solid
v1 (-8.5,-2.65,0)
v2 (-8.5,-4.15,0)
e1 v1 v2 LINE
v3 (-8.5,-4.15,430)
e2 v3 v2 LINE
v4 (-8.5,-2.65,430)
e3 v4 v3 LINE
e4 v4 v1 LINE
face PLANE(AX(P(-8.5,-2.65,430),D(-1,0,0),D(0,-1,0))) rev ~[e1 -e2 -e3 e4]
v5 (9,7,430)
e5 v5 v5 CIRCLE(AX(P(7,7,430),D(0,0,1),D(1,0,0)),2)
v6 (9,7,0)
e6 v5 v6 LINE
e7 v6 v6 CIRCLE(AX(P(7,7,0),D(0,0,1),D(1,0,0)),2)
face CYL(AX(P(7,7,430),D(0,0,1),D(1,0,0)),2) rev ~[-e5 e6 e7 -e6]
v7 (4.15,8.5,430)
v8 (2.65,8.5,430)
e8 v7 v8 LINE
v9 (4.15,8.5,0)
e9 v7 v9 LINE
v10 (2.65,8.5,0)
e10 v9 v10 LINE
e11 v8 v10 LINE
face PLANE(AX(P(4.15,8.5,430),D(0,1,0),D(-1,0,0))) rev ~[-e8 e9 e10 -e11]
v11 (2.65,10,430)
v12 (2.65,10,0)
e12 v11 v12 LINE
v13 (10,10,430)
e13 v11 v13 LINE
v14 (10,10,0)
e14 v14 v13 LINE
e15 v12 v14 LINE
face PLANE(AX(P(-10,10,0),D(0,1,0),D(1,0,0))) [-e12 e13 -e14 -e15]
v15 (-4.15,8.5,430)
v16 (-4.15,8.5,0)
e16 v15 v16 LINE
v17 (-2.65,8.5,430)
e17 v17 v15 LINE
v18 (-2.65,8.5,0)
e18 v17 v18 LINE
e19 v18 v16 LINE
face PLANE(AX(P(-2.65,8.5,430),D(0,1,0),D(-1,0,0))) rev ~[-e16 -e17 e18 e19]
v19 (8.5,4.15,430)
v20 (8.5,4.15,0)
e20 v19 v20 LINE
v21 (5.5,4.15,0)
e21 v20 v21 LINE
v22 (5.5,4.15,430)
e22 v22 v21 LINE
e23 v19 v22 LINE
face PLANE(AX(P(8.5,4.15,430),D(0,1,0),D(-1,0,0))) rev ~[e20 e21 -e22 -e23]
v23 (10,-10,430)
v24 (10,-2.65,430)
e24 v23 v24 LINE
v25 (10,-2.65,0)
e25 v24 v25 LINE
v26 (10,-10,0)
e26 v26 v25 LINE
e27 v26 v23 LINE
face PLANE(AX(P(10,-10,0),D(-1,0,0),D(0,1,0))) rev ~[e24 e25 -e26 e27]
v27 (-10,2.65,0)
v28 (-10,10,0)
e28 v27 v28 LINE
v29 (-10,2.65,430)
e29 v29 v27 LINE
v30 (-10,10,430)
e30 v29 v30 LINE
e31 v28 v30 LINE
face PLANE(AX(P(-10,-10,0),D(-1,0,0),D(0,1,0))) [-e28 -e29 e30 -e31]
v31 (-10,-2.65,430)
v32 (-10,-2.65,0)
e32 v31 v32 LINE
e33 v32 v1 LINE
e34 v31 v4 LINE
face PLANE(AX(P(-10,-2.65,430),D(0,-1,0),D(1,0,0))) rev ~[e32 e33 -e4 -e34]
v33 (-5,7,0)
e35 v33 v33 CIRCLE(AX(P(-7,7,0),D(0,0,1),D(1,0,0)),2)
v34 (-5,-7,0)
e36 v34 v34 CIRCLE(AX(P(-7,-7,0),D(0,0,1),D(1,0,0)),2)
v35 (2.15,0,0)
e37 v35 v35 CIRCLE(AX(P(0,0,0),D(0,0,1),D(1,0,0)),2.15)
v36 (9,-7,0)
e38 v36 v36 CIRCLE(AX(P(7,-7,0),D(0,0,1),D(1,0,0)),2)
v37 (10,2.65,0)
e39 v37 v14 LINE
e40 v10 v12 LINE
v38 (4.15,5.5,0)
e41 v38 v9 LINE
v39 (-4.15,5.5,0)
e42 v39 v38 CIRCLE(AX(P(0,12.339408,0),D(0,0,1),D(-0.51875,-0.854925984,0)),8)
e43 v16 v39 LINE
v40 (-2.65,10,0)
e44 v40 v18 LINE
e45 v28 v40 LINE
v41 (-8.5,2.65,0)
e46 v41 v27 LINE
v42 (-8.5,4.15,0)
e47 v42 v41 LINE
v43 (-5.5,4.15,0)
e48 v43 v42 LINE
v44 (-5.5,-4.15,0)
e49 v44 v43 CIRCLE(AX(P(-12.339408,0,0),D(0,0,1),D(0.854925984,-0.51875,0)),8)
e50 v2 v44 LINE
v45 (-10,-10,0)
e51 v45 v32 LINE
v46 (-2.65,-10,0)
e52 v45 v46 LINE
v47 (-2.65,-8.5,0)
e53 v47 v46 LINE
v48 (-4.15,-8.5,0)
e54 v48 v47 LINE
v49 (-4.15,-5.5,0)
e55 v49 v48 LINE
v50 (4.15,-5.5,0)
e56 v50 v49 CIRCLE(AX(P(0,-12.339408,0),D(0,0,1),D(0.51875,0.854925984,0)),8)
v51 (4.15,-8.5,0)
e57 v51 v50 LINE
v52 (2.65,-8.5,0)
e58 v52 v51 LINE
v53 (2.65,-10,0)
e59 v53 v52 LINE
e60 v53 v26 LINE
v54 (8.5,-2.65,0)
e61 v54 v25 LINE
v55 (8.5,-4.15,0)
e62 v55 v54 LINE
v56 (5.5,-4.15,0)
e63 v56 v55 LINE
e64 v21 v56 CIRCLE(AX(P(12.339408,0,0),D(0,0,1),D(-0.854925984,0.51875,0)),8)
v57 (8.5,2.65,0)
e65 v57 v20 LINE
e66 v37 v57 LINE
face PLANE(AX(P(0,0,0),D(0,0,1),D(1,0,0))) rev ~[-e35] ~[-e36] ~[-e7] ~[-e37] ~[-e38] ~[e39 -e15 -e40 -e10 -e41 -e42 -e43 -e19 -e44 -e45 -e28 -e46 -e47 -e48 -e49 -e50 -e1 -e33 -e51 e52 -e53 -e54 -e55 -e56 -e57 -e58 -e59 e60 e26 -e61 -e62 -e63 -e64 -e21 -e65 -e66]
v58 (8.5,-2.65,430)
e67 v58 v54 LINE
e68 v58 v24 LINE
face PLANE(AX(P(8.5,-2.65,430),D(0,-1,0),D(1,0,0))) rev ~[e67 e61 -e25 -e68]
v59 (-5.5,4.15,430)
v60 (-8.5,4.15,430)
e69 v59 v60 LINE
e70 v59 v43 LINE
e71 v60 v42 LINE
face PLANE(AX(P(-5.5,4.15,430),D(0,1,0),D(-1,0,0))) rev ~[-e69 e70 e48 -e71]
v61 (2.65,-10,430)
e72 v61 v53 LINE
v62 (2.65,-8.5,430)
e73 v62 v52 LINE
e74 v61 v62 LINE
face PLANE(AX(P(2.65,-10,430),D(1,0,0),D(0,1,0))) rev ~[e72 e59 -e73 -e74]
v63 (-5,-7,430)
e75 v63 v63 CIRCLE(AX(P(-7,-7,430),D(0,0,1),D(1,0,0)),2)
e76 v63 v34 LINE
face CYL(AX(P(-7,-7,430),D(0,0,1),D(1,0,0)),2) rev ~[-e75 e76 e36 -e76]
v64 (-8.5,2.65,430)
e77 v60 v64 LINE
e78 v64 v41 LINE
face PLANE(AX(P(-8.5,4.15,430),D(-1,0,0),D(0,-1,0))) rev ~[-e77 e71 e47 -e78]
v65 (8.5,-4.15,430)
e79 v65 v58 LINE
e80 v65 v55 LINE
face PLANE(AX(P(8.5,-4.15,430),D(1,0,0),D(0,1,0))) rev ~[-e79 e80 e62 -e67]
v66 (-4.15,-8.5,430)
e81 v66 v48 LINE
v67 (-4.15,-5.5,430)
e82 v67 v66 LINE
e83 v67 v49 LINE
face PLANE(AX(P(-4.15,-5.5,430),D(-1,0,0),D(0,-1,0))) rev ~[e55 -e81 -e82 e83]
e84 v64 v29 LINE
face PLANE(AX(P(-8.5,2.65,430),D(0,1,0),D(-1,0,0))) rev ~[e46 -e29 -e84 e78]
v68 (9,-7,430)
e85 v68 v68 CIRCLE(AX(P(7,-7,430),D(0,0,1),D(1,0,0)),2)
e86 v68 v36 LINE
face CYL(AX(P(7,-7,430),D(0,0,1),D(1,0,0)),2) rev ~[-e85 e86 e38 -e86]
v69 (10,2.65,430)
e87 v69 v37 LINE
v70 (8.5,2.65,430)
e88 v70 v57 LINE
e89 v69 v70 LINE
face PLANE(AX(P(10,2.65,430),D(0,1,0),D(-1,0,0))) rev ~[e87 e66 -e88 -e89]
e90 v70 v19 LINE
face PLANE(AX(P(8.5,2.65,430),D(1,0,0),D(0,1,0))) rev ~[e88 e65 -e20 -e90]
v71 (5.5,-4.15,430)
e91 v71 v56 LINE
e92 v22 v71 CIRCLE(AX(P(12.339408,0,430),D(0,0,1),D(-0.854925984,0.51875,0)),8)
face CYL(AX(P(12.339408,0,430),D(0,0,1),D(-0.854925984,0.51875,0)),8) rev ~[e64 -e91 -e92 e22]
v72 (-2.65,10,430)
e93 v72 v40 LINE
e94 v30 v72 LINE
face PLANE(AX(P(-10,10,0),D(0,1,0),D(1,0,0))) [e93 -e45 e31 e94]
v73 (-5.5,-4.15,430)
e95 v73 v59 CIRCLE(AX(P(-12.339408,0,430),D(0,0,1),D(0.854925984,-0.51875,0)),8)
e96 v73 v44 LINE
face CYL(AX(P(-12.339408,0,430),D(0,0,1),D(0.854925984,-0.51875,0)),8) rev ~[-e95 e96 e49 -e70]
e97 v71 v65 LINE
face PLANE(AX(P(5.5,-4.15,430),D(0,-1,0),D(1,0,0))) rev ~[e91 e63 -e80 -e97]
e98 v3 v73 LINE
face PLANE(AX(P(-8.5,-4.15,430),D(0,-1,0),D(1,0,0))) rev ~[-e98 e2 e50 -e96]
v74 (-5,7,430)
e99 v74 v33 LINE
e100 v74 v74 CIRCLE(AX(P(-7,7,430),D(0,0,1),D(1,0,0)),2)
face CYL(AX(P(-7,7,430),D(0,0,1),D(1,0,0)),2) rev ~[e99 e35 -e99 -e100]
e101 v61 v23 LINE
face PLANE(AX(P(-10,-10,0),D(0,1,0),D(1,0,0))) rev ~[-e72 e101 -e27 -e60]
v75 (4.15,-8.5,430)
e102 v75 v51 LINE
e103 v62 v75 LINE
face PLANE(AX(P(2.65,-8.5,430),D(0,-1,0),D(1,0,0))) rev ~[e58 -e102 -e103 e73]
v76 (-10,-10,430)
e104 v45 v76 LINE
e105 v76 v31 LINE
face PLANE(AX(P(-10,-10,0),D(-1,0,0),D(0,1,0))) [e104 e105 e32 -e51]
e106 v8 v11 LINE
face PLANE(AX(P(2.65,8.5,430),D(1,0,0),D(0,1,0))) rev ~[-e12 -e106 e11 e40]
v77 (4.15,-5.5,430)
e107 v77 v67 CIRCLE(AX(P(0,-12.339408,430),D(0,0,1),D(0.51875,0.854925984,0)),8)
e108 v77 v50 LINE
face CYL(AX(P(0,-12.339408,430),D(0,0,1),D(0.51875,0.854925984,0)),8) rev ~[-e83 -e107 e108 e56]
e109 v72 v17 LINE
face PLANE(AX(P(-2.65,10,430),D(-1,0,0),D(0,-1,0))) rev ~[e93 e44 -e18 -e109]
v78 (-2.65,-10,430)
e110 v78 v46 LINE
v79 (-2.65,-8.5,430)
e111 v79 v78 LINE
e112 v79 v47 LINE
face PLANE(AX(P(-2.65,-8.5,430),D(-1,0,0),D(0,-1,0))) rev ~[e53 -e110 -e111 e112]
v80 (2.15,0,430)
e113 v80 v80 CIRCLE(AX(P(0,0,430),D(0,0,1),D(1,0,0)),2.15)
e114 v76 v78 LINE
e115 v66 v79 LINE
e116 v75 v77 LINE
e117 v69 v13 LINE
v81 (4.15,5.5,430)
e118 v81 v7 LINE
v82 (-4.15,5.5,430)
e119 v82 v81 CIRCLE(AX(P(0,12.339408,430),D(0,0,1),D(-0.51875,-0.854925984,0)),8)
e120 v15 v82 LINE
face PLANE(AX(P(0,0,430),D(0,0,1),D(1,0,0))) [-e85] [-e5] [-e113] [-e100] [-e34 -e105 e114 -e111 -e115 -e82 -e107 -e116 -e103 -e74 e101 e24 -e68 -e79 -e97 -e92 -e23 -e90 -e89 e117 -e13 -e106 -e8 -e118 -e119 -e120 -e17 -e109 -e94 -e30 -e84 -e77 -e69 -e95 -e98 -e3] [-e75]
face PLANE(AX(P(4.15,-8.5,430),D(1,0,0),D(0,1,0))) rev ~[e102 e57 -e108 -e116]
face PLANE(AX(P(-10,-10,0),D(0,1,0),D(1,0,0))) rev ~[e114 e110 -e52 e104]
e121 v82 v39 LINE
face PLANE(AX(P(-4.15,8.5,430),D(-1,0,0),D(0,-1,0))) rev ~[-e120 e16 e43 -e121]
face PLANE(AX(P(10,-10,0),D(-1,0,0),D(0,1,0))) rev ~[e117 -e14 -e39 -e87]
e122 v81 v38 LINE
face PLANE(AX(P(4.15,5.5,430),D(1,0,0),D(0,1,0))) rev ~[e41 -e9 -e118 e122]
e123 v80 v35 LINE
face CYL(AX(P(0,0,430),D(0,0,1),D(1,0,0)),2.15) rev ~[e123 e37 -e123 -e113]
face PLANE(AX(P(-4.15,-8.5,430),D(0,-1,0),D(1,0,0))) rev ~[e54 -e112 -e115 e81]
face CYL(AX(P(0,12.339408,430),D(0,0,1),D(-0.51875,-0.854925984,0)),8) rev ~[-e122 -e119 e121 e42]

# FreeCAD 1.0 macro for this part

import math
import FreeCAD as App
import Part
import Sketcher

V = App.Vector
Q = App.Units.Quantity

doc = App.newDocument("Part")
body = doc.addObject("PartDesign::Body", "Body")

# Sketch on XY plane
sketch1 = body.newObject("Sketcher::SketchObject", "Sketch")
sketch1.AttachmentSupport = (doc.getObject("XY_Plane"), [""])
sketch1.MapMode = "FlatFace"
sketch1.addGeometry([
    Part.LineSegment(V(-10, 10, 0), V(-10, -10, 0)),
    Part.LineSegment(V(-10, -10, 0), V(10, -10, 0)),
    Part.LineSegment(V(10, -10, 0), V(10, 10, 0)),
    Part.LineSegment(V(10, 10, 0), V(-10, 10, 0)),
], False)
sketch1.addConstraint([
    Sketcher.Constraint("Coincident", 0, 2, 1, 1),
    Sketcher.Constraint("Coincident", 1, 2, 2, 1),
    Sketcher.Constraint("Coincident", 2, 2, 3, 1),
    Sketcher.Constraint("Coincident", 3, 2, 0, 1),
    Sketcher.Constraint("Vertical", 0),
    Sketcher.Constraint("Horizontal", 1),
    Sketcher.Constraint("Vertical", 2),
    Sketcher.Constraint("Horizontal", 3),
    Sketcher.Constraint("Symmetric", 0, 2, 2, 2, -1, 1),
    Sketcher.Constraint("Equal", 3, 0),
    Sketcher.Constraint("DistanceX", 1, 1, 1, 2, Q("20 mm")),
])
pad1 = body.newObject("PartDesign::Pad", "Pad")
pad1.Profile = sketch1
pad1.Length = 430

# Sketch on XY plane
sketch2 = body.newObject("Sketcher::SketchObject", "Sketch001")
sketch2.AttachmentSupport = (doc.getObject("XY_Plane"), [""])
sketch2.MapMode = "FlatFace"
sketch2.AttachmentOffset = App.Placement(V(0, 0, 430), App.Rotation())
sketch2.addGeometry([
    Part.Circle(V(0, 0, 0), V(0, 0, 1), 2.1),  # 0
    Part.Circle(V(-7, 7, 0), V(0, 0, 1), 2),  # 1
    Part.Circle(V(7, 7, 0), V(0, 0, 1), 2),  # 2
    Part.Circle(V(7, -7, 0), V(0, 0, 1), 2),  # 3
    Part.Circle(V(-7, -7, 0), V(0, 0, 1), 2),  # 4
    Part.LineSegment(V(-2.6, 10, 0), V(-2.6, 8.5, 0)),  # 5
    Part.LineSegment(V(-2.6, 8.5, 0), V(-4.2, 8.5, 0)),  # 6
    Part.LineSegment(V(-4.2, 8.5, 0), V(-4.2, 5.5, 0)),  # 7
    Part.ArcOfCircle(Part.Circle(V(0, 12.3, 0), V(0, 0, 1), 8), math.radians(-121), math.radians(-59)),  # 8
    Part.LineSegment(V(4.2, 5.5, 0), V(4.2, 8.5, 0)),  # 9
    Part.LineSegment(V(4.2, 8.5, 0), V(2.6, 8.5, 0)),  # 10
    Part.LineSegment(V(2.6, 8.5, 0), V(2.6, 10, 0)),  # 11
    Part.LineSegment(V(2.6, 10, 0), V(-2.6, 10, 0)),  # 12
    Part.LineSegment(V(10, 2.6, 0), V(8.5, 2.6, 0)),  # 13
    Part.LineSegment(V(8.5, 2.6, 0), V(8.5, 4.2, 0)),  # 14
    Part.LineSegment(V(8.5, 4.2, 0), V(5.5, 4.2, 0)),  # 15
    Part.ArcOfCircle(Part.Circle(V(12.3, 0, 0), V(0, 0, 1), 8), math.radians(149), math.radians(211)),  # 16
    Part.LineSegment(V(5.5, -4.2, 0), V(8.5, -4.2, 0)),  # 17
    Part.LineSegment(V(8.5, -4.2, 0), V(8.5, -2.6, 0)),  # 18
    Part.LineSegment(V(8.5, -2.6, 0), V(10, -2.6, 0)),  # 19
    Part.LineSegment(V(10, -2.6, 0), V(10, 2.6, 0)),  # 20
    Part.LineSegment(V(2.6, -10, 0), V(2.6, -8.5, 0)),  # 21
    Part.LineSegment(V(2.6, -8.5, 0), V(4.2, -8.5, 0)),  # 22
    Part.LineSegment(V(4.2, -8.5, 0), V(4.2, -5.5, 0)),  # 23
    Part.ArcOfCircle(Part.Circle(V(0, -12.3, 0), V(0, 0, 1), 8), math.radians(59), math.radians(121)),  # 24
    Part.LineSegment(V(-4.2, -5.5, 0), V(-4.2, -8.5, 0)),  # 25
    Part.LineSegment(V(-4.2, -8.5, 0), V(-2.6, -8.5, 0)),  # 26
    Part.LineSegment(V(-2.6, -8.5, 0), V(-2.6, -10, 0)),  # 27
    Part.LineSegment(V(-2.6, -10, 0), V(2.6, -10, 0)),  # 28
    Part.LineSegment(V(-10, -2.6, 0), V(-8.5, -2.6, 0)),  # 29
    Part.LineSegment(V(-8.5, -2.6, 0), V(-8.5, -4.2, 0)),  # 30
    Part.LineSegment(V(-8.5, -4.2, 0), V(-5.5, -4.2, 0)),  # 31
    Part.ArcOfCircle(Part.Circle(V(-12.3, 0, 0), V(0, 0, 1), 8), math.radians(-31), math.radians(31)),  # 32
    Part.LineSegment(V(-5.5, 4.2, 0), V(-8.5, 4.2, 0)),  # 33
    Part.LineSegment(V(-8.5, 4.2, 0), V(-8.5, 2.6, 0)),  # 34
    Part.LineSegment(V(-8.5, 2.6, 0), V(-10, 2.6, 0)),  # 35
    Part.LineSegment(V(-10, 2.6, 0), V(-10, -2.6, 0)),  # 36
], False)
sketch2.addConstraint([
    Sketcher.Constraint("Coincident", 5, 2, 6, 1),
    Sketcher.Constraint("Coincident", 6, 2, 7, 1),
    Sketcher.Constraint("Coincident", 7, 2, 8, 1),
    Sketcher.Constraint("Coincident", 8, 2, 9, 1),
    Sketcher.Constraint("Coincident", 9, 2, 10, 1),
    Sketcher.Constraint("Coincident", 10, 2, 11, 1),
    Sketcher.Constraint("Coincident", 11, 2, 12, 1),
    Sketcher.Constraint("Coincident", 12, 2, 5, 1),
    Sketcher.Constraint("Coincident", 13, 2, 14, 1),
    Sketcher.Constraint("Coincident", 14, 2, 15, 1),
    Sketcher.Constraint("Coincident", 15, 2, 16, 1),
    Sketcher.Constraint("Coincident", 16, 2, 17, 1),
    Sketcher.Constraint("Coincident", 17, 2, 18, 1),
    Sketcher.Constraint("Coincident", 18, 2, 19, 1),
    Sketcher.Constraint("Coincident", 19, 2, 20, 1),
    Sketcher.Constraint("Coincident", 20, 2, 13, 1),
    Sketcher.Constraint("Coincident", 21, 2, 22, 1),
    Sketcher.Constraint("Coincident", 22, 2, 23, 1),
    Sketcher.Constraint("Coincident", 23, 2, 24, 1),
    Sketcher.Constraint("Coincident", 24, 2, 25, 1),
    Sketcher.Constraint("Coincident", 25, 2, 26, 1),
    Sketcher.Constraint("Coincident", 26, 2, 27, 1),
    Sketcher.Constraint("Coincident", 27, 2, 28, 1),
    Sketcher.Constraint("Coincident", 28, 2, 21, 1),
    Sketcher.Constraint("Coincident", 29, 2, 30, 1),
    Sketcher.Constraint("Coincident", 30, 2, 31, 1),
    Sketcher.Constraint("Coincident", 31, 2, 32, 1),
    Sketcher.Constraint("Coincident", 32, 2, 33, 1),
    Sketcher.Constraint("Coincident", 33, 2, 34, 1),
    Sketcher.Constraint("Coincident", 34, 2, 35, 1),
    Sketcher.Constraint("Coincident", 35, 2, 36, 1),
    Sketcher.Constraint("Coincident", 36, 2, 29, 1),
    Sketcher.Constraint("Vertical", 5),
    Sketcher.Constraint("Horizontal", 6),
    Sketcher.Constraint("Vertical", 7),
    Sketcher.Constraint("Vertical", 9),
    Sketcher.Constraint("Horizontal", 10),
    Sketcher.Constraint("Vertical", 11),
    Sketcher.Constraint("Horizontal", 12),
    Sketcher.Constraint("Horizontal", 13),
    Sketcher.Constraint("Vertical", 14),
    Sketcher.Constraint("Horizontal", 15),
    Sketcher.Constraint("Horizontal", 17),
    Sketcher.Constraint("Vertical", 18),
    Sketcher.Constraint("Horizontal", 19),
    Sketcher.Constraint("Vertical", 20),
    Sketcher.Constraint("Vertical", 21),
    Sketcher.Constraint("Horizontal", 22),
    Sketcher.Constraint("Vertical", 23),
    Sketcher.Constraint("Vertical", 25),
    Sketcher.Constraint("Horizontal", 26),
    Sketcher.Constraint("Vertical", 27),
    Sketcher.Constraint("Horizontal", 28),
    Sketcher.Constraint("Horizontal", 29),
    Sketcher.Constraint("Vertical", 30),
    Sketcher.Constraint("Horizontal", 31),
    Sketcher.Constraint("Horizontal", 33),
    Sketcher.Constraint("Vertical", 34),
    Sketcher.Constraint("Horizontal", 35),
    Sketcher.Constraint("Vertical", 36),
    Sketcher.Constraint("Coincident", 0, 3, -1, 1),
    Sketcher.Constraint("Equal", 1, 2),
    Sketcher.Constraint("Equal", 2, 3),
    Sketcher.Constraint("Equal", 3, 4),
    Sketcher.Constraint("Equal", 8, 16),
    Sketcher.Constraint("Equal", 16, 24),
    Sketcher.Constraint("Equal", 24, 32),
    Sketcher.Constraint("Symmetric", 1, 3, 3, 3, -1, 1),
    Sketcher.Constraint("Symmetric", 2, 3, 4, 3, -1, 1),
    Sketcher.Constraint("Symmetric", 8, 3, 24, 3, -1, 1),
    Sketcher.Constraint("Symmetric", 16, 3, 32, 3, -1, 1),
    Sketcher.Constraint("Symmetric", 5, 2, 21, 2, -1, 1),
    Sketcher.Constraint("Symmetric", 9, 2, 25, 2, -1, 1),
    Sketcher.Constraint("Symmetric", 11, 2, 27, 2, -1, 1),
    Sketcher.Constraint("Symmetric", 13, 2, 29, 2, -1, 1),
    Sketcher.Constraint("Symmetric", 17, 2, 33, 2, -1, 1),
    Sketcher.Constraint("Symmetric", 19, 2, 35, 2, -1, 1),
    Sketcher.Constraint("Symmetric", 1, 3, 2, 3, -2),
    Sketcher.Constraint("Symmetric", 7, 2, 8, 2, -2),
    Sketcher.Constraint("Symmetric", 5, 2, 10, 2, -2),
    Sketcher.Constraint("Symmetric", 18, 2, 29, 2, -2),
    Sketcher.Constraint("Symmetric", 16, 2, 31, 2, -2),
    Sketcher.Constraint("Horizontal", 23, 2, 24, 2),
    Sketcher.Constraint("Horizontal", 15, 2, 32, 2),
    Sketcher.Constraint("Equal", 10, 13),
    Sketcher.Constraint("Equal", 35, 5),
    Sketcher.Constraint("Equal", 33, 7),
    Sketcher.Constraint("Equal", 11, 14),
    Sketcher.Constraint("Equal", 28, 20),
    Sketcher.Constraint("Diameter", 1, Q("4 mm")),
    Sketcher.Constraint("Radius", 8, Q("8 mm")),
    Sketcher.Constraint("Diameter", 0, Q("4.3 mm")),
    Sketcher.Constraint("DistanceX", 15, 2, 15, 1, Q("3 mm")),
    Sketcher.Constraint("DistanceX", 6, 2, 6, 1, Q("1.5 mm")),
    Sketcher.Constraint("DistanceX", 12, 2, 12, 1, Q("5.3 mm")),
    Sketcher.Constraint("DistanceX", 1, 3, -1, 1, Q("7 mm")),
    Sketcher.Constraint("DistanceY", -1, 1, 1, 3, Q("7 mm")),
    Sketcher.Constraint("DistanceY", -1, 1, 11, 2, Q("10 mm")),
    Sketcher.Constraint("DistanceX", -1, 1, 19, 2, Q("10 mm")),
])
pocket1 = body.newObject("PartDesign::Pocket", "Pocket")
pocket1.Profile = sketch2
pocket1.Type = "ThroughAll"

doc.recompute()
